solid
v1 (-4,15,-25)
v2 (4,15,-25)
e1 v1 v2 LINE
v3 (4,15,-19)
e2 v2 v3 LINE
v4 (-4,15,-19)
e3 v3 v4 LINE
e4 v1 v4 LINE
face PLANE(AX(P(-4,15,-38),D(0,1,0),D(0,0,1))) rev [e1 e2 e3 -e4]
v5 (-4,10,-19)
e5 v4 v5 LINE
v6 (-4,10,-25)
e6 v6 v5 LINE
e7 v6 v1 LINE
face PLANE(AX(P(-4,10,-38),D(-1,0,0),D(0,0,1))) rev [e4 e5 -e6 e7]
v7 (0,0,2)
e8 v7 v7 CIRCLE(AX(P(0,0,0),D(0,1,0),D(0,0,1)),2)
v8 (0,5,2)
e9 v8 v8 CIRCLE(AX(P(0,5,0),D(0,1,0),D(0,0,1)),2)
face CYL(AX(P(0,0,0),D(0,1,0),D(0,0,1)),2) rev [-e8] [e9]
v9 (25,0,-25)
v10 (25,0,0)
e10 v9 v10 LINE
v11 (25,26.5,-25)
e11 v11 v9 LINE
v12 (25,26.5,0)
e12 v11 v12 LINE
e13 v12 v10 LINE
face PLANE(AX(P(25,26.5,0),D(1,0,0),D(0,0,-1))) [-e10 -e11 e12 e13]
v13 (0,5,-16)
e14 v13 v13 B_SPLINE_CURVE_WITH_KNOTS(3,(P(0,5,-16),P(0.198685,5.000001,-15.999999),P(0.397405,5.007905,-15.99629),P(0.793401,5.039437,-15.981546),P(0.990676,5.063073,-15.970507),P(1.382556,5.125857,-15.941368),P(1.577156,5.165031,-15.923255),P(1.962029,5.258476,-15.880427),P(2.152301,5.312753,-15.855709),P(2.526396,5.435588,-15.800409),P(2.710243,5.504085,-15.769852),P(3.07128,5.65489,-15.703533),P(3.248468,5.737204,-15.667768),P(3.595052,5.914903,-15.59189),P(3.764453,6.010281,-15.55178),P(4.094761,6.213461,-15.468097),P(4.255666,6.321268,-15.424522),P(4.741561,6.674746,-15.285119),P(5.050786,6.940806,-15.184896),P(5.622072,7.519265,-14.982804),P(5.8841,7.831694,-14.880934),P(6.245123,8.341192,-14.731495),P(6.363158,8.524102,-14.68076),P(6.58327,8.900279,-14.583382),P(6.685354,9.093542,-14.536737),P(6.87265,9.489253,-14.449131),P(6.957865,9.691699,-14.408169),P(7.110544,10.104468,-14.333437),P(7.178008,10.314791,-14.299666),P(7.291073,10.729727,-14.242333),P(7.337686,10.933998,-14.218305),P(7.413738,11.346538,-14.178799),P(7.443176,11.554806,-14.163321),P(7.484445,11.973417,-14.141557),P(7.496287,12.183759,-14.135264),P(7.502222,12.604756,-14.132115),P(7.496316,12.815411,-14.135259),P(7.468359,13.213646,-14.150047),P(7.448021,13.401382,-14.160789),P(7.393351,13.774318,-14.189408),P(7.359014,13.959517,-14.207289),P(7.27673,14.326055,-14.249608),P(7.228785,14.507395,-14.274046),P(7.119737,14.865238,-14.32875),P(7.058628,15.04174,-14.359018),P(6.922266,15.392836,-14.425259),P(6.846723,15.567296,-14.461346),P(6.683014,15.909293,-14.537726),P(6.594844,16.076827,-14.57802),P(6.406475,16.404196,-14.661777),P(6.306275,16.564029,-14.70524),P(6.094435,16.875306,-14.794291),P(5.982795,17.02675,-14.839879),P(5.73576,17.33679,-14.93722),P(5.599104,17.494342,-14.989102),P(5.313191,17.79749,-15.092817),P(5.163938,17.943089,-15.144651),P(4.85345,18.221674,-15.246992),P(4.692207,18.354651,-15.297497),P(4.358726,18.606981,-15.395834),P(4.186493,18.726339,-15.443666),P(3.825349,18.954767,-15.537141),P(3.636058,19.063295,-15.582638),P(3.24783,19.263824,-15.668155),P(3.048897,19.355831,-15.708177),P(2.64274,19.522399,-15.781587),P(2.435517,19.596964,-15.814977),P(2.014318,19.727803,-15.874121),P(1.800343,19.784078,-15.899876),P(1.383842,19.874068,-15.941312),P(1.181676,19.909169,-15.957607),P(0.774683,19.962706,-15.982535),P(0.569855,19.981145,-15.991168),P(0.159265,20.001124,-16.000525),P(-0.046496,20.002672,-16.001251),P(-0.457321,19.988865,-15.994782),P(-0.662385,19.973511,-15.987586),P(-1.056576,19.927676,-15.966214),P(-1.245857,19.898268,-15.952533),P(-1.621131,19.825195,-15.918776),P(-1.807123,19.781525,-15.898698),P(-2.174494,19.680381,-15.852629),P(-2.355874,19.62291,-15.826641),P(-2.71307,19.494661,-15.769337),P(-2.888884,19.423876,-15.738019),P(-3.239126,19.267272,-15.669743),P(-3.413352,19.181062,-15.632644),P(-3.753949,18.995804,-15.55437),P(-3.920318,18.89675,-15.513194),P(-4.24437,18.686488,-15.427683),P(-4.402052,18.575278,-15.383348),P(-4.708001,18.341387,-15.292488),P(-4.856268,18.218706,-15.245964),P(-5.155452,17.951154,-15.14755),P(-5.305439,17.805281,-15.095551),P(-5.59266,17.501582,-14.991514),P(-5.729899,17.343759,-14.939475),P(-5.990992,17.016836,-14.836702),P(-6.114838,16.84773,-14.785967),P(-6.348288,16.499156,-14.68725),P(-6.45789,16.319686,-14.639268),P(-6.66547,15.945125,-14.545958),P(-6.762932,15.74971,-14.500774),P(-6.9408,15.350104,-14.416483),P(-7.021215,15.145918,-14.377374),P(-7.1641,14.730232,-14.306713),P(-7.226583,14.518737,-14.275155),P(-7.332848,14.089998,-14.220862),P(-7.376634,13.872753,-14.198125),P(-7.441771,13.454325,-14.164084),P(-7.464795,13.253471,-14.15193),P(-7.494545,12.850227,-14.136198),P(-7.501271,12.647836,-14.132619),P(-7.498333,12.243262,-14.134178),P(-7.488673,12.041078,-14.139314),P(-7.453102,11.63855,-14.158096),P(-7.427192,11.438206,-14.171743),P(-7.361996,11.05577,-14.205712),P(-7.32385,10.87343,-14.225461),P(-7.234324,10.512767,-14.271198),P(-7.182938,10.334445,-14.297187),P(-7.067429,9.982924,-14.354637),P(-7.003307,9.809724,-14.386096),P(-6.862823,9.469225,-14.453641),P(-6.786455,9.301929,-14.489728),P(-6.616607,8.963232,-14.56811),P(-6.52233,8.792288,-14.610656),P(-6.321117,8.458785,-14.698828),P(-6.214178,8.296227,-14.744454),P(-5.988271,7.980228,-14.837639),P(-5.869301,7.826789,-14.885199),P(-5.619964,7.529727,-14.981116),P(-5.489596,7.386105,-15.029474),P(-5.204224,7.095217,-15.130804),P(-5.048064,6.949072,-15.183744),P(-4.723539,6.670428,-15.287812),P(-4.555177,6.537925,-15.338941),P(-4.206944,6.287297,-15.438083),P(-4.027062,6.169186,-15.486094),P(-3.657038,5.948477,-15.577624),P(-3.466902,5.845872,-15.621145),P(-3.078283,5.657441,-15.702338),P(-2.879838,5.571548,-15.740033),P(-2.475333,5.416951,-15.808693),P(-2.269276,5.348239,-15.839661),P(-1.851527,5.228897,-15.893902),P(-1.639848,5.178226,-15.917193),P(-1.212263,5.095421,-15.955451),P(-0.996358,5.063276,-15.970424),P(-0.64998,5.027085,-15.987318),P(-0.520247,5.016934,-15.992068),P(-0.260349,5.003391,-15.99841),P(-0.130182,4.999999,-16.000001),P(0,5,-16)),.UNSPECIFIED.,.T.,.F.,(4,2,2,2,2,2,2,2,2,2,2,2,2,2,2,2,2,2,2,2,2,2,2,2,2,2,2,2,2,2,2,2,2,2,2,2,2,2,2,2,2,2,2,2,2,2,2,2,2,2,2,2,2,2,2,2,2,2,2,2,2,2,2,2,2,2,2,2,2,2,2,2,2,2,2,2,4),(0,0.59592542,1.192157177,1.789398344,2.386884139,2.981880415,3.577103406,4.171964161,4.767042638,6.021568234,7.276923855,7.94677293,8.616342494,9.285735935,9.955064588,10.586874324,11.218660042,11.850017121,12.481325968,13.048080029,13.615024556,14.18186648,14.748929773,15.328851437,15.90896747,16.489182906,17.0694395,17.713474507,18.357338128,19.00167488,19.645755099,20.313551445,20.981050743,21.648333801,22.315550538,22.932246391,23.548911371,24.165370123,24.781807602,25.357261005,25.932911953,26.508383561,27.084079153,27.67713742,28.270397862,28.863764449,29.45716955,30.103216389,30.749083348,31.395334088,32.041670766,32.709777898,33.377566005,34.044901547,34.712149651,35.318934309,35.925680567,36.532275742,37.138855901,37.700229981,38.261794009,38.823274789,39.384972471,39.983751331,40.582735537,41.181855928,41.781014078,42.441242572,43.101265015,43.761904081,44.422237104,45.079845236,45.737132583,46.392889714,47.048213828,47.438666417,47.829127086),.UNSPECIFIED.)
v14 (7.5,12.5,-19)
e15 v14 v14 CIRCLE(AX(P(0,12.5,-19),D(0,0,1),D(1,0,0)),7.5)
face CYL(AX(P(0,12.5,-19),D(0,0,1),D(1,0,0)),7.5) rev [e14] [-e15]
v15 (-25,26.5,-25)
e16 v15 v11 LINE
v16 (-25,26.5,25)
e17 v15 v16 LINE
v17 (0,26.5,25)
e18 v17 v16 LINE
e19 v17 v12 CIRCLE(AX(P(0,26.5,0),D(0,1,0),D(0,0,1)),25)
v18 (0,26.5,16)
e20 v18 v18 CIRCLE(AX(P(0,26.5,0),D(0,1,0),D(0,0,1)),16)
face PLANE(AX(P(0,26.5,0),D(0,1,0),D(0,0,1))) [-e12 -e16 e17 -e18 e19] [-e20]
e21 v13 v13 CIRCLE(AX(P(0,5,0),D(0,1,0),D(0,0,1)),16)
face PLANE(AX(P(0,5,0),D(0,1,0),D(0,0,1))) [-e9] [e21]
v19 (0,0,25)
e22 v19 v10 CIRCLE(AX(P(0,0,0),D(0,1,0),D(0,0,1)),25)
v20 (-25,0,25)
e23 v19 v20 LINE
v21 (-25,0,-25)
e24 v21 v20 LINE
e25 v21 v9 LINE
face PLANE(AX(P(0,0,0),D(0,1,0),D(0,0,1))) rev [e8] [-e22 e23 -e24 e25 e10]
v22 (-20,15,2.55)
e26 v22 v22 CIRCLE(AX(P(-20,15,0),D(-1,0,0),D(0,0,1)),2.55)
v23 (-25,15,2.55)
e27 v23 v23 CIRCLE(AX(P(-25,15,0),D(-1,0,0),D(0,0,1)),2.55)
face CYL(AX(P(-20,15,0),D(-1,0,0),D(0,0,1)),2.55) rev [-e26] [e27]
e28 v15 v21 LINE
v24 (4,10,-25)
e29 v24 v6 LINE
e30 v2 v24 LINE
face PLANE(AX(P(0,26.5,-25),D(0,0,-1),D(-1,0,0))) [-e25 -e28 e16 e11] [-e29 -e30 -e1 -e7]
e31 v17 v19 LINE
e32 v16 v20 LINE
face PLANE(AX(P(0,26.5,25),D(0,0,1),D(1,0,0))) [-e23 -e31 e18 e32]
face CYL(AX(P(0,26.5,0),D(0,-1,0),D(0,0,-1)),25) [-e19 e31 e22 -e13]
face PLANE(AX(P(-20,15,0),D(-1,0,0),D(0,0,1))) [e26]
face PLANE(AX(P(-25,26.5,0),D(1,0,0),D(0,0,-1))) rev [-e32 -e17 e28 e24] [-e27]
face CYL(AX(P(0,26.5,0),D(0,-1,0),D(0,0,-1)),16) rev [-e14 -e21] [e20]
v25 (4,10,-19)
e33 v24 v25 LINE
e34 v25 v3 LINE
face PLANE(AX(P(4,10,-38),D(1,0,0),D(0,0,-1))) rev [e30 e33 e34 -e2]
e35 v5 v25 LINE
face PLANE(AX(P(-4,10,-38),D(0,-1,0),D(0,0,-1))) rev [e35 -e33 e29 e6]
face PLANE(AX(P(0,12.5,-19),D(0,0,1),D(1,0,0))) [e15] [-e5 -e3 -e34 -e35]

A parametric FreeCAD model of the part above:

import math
import FreeCAD as App
import Part
import Sketcher

V = App.Vector
Q = App.Units.Quantity


def add_polygon(sketch, points):
    """Adds a closed chain of lines whose ends are joined by coincident constraints."""
    first, n = sketch.GeometryCount, len(points)
    for a, b in zip(points, points[1:] + points[:1]):
        sketch.addGeometry(Part.LineSegment(App.Vector(*a, 0), App.Vector(*b, 0)), False)
    for i in range(n):
        sketch.addConstraint(Sketcher.Constraint("Coincident", first + i, 2, first + (i + 1) % n, 1))

doc = App.newDocument("Part")
body = doc.addObject("PartDesign::Body", "Body")

# Sketch on XZ plane
sketch1 = body.newObject("Sketcher::SketchObject", "Sketch")
sketch1.AttachmentSupport = (doc.getObject("XZ_Plane"), [""])
sketch1.MapMode = "FlatFace"
sketch1.addGeometry(Part.ArcOfCircle(Part.Circle(V(0, 0, 0), V(0, 0, 1), 25), math.radians(0), math.radians(90)), False)
sketch1.addGeometry(Part.LineSegment(V(25, 0, 0), V(25, -25, 0)), False)
sketch1.addGeometry(Part.LineSegment(V(25, -25, 0), V(-25, -25, 0)), False)
sketch1.addGeometry(Part.LineSegment(V(-25, -25, 0), V(-25, 25, 0)), False)
sketch1.addGeometry(Part.LineSegment(V(-25, 25, 0), V(0, 25, 0)), False)
sketch1.addGeometry(Part.Circle(V(0, 0, 0), V(0, 0, 1), 16), False)
sketch1.addConstraint(Sketcher.Constraint("Tangent", 0, 1, 1, 1))
sketch1.addConstraint(Sketcher.Constraint("Coincident", 1, 2, 2, 1))
sketch1.addConstraint(Sketcher.Constraint("Coincident", 2, 2, 3, 1))
sketch1.addConstraint(Sketcher.Constraint("Coincident", 3, 2, 4, 1))
sketch1.addConstraint(Sketcher.Constraint("Tangent", 4, 2, 0, 2))
sketch1.addConstraint(Sketcher.Constraint("Vertical", 1))
sketch1.addConstraint(Sketcher.Constraint("Horizontal", 2))
sketch1.addConstraint(Sketcher.Constraint("Vertical", 3))
sketch1.addConstraint(Sketcher.Constraint("Horizontal", 4))
sketch1.addConstraint(Sketcher.Constraint("Coincident", 0, 3, -1, 1))
sketch1.addConstraint(Sketcher.Constraint("Coincident", 5, 3, -1, 1))
sketch1.addConstraint(Sketcher.Constraint("Symmetric", 1, 2, 3, 2, -1, 1))
sketch1.addConstraint(Sketcher.Constraint("Diameter", 5, Q("32 mm")))
sketch1.addConstraint(Sketcher.Constraint("Radius", 0, Q("25 mm")))
pad1 = body.newObject("PartDesign::Pad", "Pad")
pad1.Profile = sketch1
pad1.Length = 26.5
pad1.Reversed = True

# Sketch on XZ plane
sketch2 = body.newObject("Sketcher::SketchObject", "Sketch001")
sketch2.AttachmentSupport = (doc.getObject("XZ_Plane"), [""])
sketch2.MapMode = "FlatFace"
sketch2.addGeometry(Part.Circle(V(0, 0, 0), V(0, 0, 1), 16), False)
sketch2.addConstraint(Sketcher.Constraint("Coincident", 0, 3, -1, 1))
sketch2.addConstraint(Sketcher.Constraint("Diameter", 0, Q("32 mm")))
pad2 = body.newObject("PartDesign::Pad", "Pad001")
pad2.Profile = sketch2
pad2.Length = 5
pad2.Reversed = True

# Sketch on XZ plane
sketch3 = body.newObject("Sketcher::SketchObject", "Sketch002")
sketch3.AttachmentSupport = (doc.getObject("XZ_Plane"), [""])
sketch3.MapMode = "FlatFace"
sketch3.AttachmentOffset = App.Placement(V(0, 0, -5), App.Rotation())
sketch3.addGeometry(Part.Circle(V(0, 0, 0), V(0, 0, 1), 2), False)
sketch3.addConstraint(Sketcher.Constraint("Coincident", 0, 3, -1, 1))
sketch3.addConstraint(Sketcher.Constraint("Diameter", 0, Q("4 mm")))
pocket1 = body.newObject("PartDesign::Pocket", "Pocket")
pocket1.Profile = sketch3
pocket1.Length = 5
pocket1.Reversed = True

# Sketch on YZ plane
sketch4 = body.newObject("Sketcher::SketchObject", "Sketch003")
sketch4.AttachmentSupport = (doc.getObject("YZ_Plane"), [""])
sketch4.MapMode = "FlatFace"
sketch4.AttachmentOffset = App.Placement(V(0, 0, -25), App.Rotation())
sketch4.addGeometry(Part.Circle(V(15, 0, 0), V(0, 0, 1), 2.5), False)
sketch4.addConstraint(Sketcher.Constraint("PointOnObject", 0, 3, -1))
sketch4.addConstraint(Sketcher.Constraint("Diameter", 0, Q("5.1 mm")))
sketch4.addConstraint(Sketcher.Constraint("DistanceX", -1, 1, 0, 3, Q("15 mm")))
pocket2 = body.newObject("PartDesign::Pocket", "Pocket001")
pocket2.Profile = sketch4
pocket2.Length = 5
pocket2.Reversed = True

# Sketch on XY plane
sketch5 = body.newObject("Sketcher::SketchObject", "Sketch004")
sketch5.AttachmentSupport = (doc.getObject("XY_Plane"), [""])
sketch5.MapMode = "FlatFace"
sketch5.addGeometry(Part.Circle(V(0, 12, 0), V(0, 0, 1), 8), False)
sketch5.addConstraint(Sketcher.Constraint("PointOnObject", 0, 3, -2))
sketch5.addConstraint(Sketcher.Constraint("Diameter", 0, Q("15 mm")))
sketch5.addConstraint(Sketcher.Constraint("DistanceY", -1, 1, 0, 3, Q("12.5 mm")))
pocket3 = body.newObject("PartDesign::Pocket", "Pocket002")
pocket3.Profile = sketch5
pocket3.Length = 19

# Sketch on XY plane
sketch6 = body.newObject("Sketcher::SketchObject", "Sketch005")
sketch6.AttachmentSupport = (doc.getObject("XY_Plane"), [""])
sketch6.MapMode = "FlatFace"
sketch6.AttachmentOffset = App.Placement(V(0, 0, -19), App.Rotation())
add_polygon(sketch6, [(-4, 15), (-4, 10), (4, 10), (4, 15)])  # lines 0-3
sketch6.addConstraint(Sketcher.Constraint("Vertical", 0))
sketch6.addConstraint(Sketcher.Constraint("Horizontal", 1))
sketch6.addConstraint(Sketcher.Constraint("Vertical", 2))
sketch6.addConstraint(Sketcher.Constraint("Horizontal", 3))
sketch6.addConstraint(Sketcher.Constraint("DistanceX", 1, 1, 1, 2, Q("8 mm")))
sketch6.addConstraint(Sketcher.Constraint("DistanceY", 0, 2, 0, 1, Q("5 mm")))
sketch6.addConstraint(Sketcher.Constraint("DistanceX", 0, 2, -1, 1, Q("4 mm")))
sketch6.addConstraint(Sketcher.Constraint("DistanceY", -1, 1, 0, 2, Q("10 mm")))
pocket4 = body.newObject("PartDesign::Pocket", "Pocket003")
pocket4.Profile = sketch6
pocket4.Length = 19

doc.recompute()
